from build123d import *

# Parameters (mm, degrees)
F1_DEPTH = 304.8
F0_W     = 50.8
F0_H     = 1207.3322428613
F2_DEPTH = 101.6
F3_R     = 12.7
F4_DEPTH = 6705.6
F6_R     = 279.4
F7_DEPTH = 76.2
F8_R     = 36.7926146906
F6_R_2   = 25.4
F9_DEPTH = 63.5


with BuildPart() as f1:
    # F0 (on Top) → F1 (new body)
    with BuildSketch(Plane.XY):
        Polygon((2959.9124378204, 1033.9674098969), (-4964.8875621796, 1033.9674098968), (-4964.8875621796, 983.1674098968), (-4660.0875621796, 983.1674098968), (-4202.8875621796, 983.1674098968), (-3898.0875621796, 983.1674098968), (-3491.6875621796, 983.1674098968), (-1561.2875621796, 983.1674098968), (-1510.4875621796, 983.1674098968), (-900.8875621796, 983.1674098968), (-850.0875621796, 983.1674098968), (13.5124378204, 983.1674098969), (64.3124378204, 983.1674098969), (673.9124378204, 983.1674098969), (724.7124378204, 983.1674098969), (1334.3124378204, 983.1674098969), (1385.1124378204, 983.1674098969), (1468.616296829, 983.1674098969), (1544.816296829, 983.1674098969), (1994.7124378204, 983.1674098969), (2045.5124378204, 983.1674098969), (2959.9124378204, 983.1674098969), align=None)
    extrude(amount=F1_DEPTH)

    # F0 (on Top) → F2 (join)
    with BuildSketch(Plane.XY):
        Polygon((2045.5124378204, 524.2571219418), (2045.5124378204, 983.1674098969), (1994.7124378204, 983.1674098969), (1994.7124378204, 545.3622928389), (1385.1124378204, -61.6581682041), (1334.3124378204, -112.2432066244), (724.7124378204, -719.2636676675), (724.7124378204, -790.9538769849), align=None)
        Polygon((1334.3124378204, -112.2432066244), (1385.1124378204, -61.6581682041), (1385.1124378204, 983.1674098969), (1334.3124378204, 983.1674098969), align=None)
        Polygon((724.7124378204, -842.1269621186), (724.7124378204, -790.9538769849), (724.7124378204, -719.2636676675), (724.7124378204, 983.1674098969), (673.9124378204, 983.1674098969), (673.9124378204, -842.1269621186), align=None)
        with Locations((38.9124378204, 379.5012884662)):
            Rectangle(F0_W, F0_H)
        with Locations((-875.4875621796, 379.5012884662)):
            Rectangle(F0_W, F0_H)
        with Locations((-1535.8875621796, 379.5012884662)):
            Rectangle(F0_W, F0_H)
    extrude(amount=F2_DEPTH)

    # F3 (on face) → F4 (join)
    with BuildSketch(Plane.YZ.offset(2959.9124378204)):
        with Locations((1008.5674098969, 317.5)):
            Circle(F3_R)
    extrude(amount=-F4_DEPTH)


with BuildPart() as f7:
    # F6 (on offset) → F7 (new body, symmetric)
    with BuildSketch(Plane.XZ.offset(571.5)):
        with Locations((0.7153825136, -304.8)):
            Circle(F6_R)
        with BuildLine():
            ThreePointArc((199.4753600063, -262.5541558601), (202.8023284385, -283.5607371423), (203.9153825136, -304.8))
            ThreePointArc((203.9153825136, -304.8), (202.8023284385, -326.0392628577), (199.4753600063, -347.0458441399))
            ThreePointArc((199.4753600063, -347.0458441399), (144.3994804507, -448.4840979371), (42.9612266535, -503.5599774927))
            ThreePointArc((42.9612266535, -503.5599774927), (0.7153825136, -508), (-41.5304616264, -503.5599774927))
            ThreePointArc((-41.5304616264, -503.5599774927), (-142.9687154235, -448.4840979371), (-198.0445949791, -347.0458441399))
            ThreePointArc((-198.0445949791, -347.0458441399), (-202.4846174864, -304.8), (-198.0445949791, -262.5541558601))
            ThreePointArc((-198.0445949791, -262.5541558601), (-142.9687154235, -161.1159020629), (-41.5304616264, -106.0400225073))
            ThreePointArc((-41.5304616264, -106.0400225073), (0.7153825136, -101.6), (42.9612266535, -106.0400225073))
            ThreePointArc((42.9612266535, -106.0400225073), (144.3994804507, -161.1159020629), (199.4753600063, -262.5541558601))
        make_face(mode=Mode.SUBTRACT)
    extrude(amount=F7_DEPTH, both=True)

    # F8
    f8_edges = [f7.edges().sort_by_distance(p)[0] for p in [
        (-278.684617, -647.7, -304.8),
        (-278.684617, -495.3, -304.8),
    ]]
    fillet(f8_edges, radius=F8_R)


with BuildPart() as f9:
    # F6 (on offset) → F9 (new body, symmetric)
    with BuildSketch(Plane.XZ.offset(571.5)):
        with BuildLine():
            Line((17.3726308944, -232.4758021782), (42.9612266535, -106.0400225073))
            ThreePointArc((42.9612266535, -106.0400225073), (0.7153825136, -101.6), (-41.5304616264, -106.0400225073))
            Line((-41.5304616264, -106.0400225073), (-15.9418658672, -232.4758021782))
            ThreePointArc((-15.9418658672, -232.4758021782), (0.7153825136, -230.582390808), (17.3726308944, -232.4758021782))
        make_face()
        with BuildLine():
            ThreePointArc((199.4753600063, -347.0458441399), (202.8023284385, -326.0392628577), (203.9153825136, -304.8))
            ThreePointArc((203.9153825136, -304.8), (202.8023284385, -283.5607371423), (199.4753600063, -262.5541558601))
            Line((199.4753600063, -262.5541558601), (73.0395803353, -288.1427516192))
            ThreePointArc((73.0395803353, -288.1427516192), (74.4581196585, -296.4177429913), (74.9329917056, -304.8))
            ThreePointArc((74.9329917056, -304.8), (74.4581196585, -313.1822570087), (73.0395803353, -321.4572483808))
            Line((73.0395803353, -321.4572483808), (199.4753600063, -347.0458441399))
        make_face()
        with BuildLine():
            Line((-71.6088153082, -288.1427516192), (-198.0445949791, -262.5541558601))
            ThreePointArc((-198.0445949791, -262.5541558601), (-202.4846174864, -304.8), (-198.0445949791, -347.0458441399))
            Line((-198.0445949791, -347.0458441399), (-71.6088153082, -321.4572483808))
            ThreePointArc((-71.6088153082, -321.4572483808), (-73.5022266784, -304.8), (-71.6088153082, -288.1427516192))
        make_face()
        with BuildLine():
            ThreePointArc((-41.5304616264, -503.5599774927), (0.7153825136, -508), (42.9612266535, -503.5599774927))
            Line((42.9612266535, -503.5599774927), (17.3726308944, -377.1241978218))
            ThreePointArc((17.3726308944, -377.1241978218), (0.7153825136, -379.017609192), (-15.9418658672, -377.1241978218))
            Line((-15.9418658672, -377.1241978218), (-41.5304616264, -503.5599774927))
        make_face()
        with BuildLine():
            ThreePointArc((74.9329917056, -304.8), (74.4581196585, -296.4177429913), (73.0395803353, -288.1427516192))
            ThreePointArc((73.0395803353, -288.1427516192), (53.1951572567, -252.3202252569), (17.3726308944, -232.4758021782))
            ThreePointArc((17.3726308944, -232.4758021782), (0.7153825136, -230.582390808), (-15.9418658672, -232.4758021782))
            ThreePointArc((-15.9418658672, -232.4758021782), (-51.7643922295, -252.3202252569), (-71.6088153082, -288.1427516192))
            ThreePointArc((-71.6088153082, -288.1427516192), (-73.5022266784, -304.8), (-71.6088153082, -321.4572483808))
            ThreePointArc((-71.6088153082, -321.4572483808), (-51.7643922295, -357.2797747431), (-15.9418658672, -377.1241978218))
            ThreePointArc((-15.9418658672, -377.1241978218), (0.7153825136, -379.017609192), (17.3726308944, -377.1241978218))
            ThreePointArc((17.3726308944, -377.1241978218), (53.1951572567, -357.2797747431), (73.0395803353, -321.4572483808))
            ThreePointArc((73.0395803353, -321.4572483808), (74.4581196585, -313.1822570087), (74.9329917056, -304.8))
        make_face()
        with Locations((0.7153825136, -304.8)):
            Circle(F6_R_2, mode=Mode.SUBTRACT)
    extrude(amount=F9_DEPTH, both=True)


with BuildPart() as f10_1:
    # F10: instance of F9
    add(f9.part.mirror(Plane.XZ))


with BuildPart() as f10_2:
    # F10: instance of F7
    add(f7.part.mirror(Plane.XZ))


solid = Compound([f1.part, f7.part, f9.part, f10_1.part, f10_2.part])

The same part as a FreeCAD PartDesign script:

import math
import FreeCAD as App
import Part
import Sketcher

V = App.Vector
Q = App.Units.Quantity


def edges_at(feature, points):
    """Names of the edges that pass closest to the given points."""
    edges = feature.Shape.Edges
    near = lambda p: min(range(len(edges)), key=lambda i: edges[i].distToShape(Part.Vertex(*p))[0])
    return sorted({f"Edge{near(p) + 1}" for p in points})

doc = App.newDocument("Part")
body = doc.addObject("PartDesign::Body", "Body")
body.AllowCompound = True

sketch1 = body.newObject("Sketcher::SketchObject", "Sketch")
sketch1.AttachmentSupport = (doc.getObject("XY_Plane"), [""])
sketch1.MapMode = "FlatFace"
sketch1.addGeometry([
    Part.LineSegment(V(2959.912438, 1033.96741, 0), V(-4964.887562, 1033.96741, 0)),
    Part.LineSegment(V(-4964.887562, 1033.96741, 0), V(-4964.887562, 983.16741, 0)),
    Part.LineSegment(V(-4964.887562, 983.16741, 0), V(2959.912438, 983.16741, 0)),
    Part.LineSegment(V(2959.912438, 983.16741, 0), V(2959.912438, 1033.96741, 0)),
], False)
sketch1.addConstraint([
    Sketcher.Constraint("Coincident", 0, 2, 1, 1),
    Sketcher.Constraint("Coincident", 1, 2, 2, 1),
    Sketcher.Constraint("Coincident", 2, 2, 3, 1),
    Sketcher.Constraint("Coincident", 3, 2, 0, 1),
    Sketcher.Constraint("Horizontal", 0),
    Sketcher.Constraint("Vertical", 1),
    Sketcher.Constraint("Horizontal", 2),
    Sketcher.Constraint("Vertical", 3),
    Sketcher.Constraint("DistanceX", 0, 2, 0, 1, Q("312 in")),
    Sketcher.Constraint("DistanceY", 1, 2, 1, 1, Q("2 in")),
    Sketcher.Constraint("DistanceY", -1, 1, 0, 2, 1033.96741),
    Sketcher.Constraint("DistanceX", 0, 2, -1, 1, 4964.887562),
])
pad1 = body.newObject("PartDesign::Pad", "Pad")
pad1.Profile = sketch1
pad1.Length = Q("12 in")

sketch2 = body.newObject("Sketcher::SketchObject", "Sketch001")
sketch2.AttachmentSupport = (doc.getObject("XY_Plane"), [""])
sketch2.MapMode = "FlatFace"
sketch2.addGeometry([
    Part.LineSegment(V(2045.512438, 524.257122, 0), V(2045.512438, 983.16741, 0)),
    Part.LineSegment(V(2045.512438, 983.16741, 0), V(1994.712438, 983.16741, 0)),
    Part.LineSegment(V(1994.712438, 983.16741, 0), V(1994.712438, 545.362293, 0)),
    Part.LineSegment(V(1994.712438, 545.362293, 0), V(1385.112438, -61.658168, 0)),
    Part.LineSegment(V(1385.112438, -61.658168, 0), V(1385.112438, 983.16741, 0)),
    Part.LineSegment(V(1385.112438, 983.16741, 0), V(1334.312438, 983.16741, 0)),
    Part.LineSegment(V(1334.312438, 983.16741, 0), V(1334.312438, -112.243207, 0)),
    Part.LineSegment(V(1334.312438, -112.243207, 0), V(724.712438, -719.263668, 0)),
    Part.LineSegment(V(724.712438, -719.263668, 0), V(724.712438, 983.16741, 0)),
    Part.LineSegment(V(724.712438, 983.16741, 0), V(673.912438, 983.16741, 0)),
    Part.LineSegment(V(673.912438, 983.16741, 0), V(673.912438, -842.126962, 0)),
    Part.LineSegment(V(673.912438, -842.126962, 0), V(724.712438, -842.126962, 0)),
    Part.LineSegment(V(724.712438, -842.126962, 0), V(724.712438, -790.953877, 0)),
    Part.LineSegment(V(724.712438, -790.953877, 0), V(2045.512438, 524.257122, 0)),
    Part.LineSegment(V(13.512438, 983.16741, 0), V(13.512438, -224.164833, 0)),
    Part.LineSegment(V(13.512438, -224.164833, 0), V(64.312438, -224.164833, 0)),
    Part.LineSegment(V(64.312438, -224.164833, 0), V(64.312438, 983.16741, 0)),
    Part.LineSegment(V(64.312438, 983.16741, 0), V(13.512438, 983.16741, 0)),
    Part.LineSegment(V(-900.887562, 983.16741, 0), V(-900.887562, -224.164833, 0)),
    Part.LineSegment(V(-900.887562, -224.164833, 0), V(-850.087562, -224.164833, 0)),
    Part.LineSegment(V(-850.087562, -224.164833, 0), V(-850.087562, 983.16741, 0)),
    Part.LineSegment(V(-850.087562, 983.16741, 0), V(-900.887562, 983.16741, 0)),
    Part.LineSegment(V(-1561.287562, 983.16741, 0), V(-1561.287562, -224.164833, 0)),
    Part.LineSegment(V(-1561.287562, -224.164833, 0), V(-1510.487562, -224.164833, 0)),
    Part.LineSegment(V(-1510.487562, -224.164833, 0), V(-1510.487562, 983.16741, 0)),
    Part.LineSegment(V(-1510.487562, 983.16741, 0), V(-1561.287562, 983.16741, 0)),
], False)
sketch2.addConstraint([
    Sketcher.Constraint("Coincident", 0, 2, 1, 1),
    Sketcher.Constraint("Coincident", 1, 2, 2, 1),
    Sketcher.Constraint("Coincident", 2, 2, 3, 1),
    Sketcher.Constraint("Coincident", 3, 2, 4, 1),
    Sketcher.Constraint("Coincident", 4, 2, 5, 1),
    Sketcher.Constraint("Coincident", 5, 2, 6, 1),
    Sketcher.Constraint("Coincident", 6, 2, 7, 1),
    Sketcher.Constraint("Coincident", 7, 2, 8, 1),
    Sketcher.Constraint("Coincident", 8, 2, 9, 1),
    Sketcher.Constraint("Coincident", 9, 2, 10, 1),
    Sketcher.Constraint("Coincident", 10, 2, 11, 1),
    Sketcher.Constraint("Coincident", 11, 2, 12, 1),
    Sketcher.Constraint("Coincident", 12, 2, 13, 1),
    Sketcher.Constraint("Coincident", 13, 2, 0, 1),
    Sketcher.Constraint("Coincident", 14, 2, 15, 1),
    Sketcher.Constraint("Coincident", 15, 2, 16, 1),
    Sketcher.Constraint("Coincident", 16, 2, 17, 1),
    Sketcher.Constraint("Coincident", 17, 2, 14, 1),
    Sketcher.Constraint("Coincident", 18, 2, 19, 1),
    Sketcher.Constraint("Coincident", 19, 2, 20, 1),
    Sketcher.Constraint("Coincident", 20, 2, 21, 1),
    Sketcher.Constraint("Coincident", 21, 2, 18, 1),
    Sketcher.Constraint("Coincident", 22, 2, 23, 1),
    Sketcher.Constraint("Coincident", 23, 2, 24, 1),
    Sketcher.Constraint("Coincident", 24, 2, 25, 1),
    Sketcher.Constraint("Coincident", 25, 2, 22, 1),
    Sketcher.Constraint("Vertical", 0),
    Sketcher.Constraint("Horizontal", 1),
    Sketcher.Constraint("Vertical", 2),
    Sketcher.Constraint("Vertical", 4),
    Sketcher.Constraint("Horizontal", 5),
    Sketcher.Constraint("Vertical", 6),
    Sketcher.Constraint("Vertical", 8),
    Sketcher.Constraint("Horizontal", 9),
    Sketcher.Constraint("Vertical", 10),
    Sketcher.Constraint("Horizontal", 11),
    Sketcher.Constraint("Vertical", 12),
    Sketcher.Constraint("Vertical", 14),
    Sketcher.Constraint("Horizontal", 15),
    Sketcher.Constraint("Vertical", 16),
    Sketcher.Constraint("Horizontal", 17),
    Sketcher.Constraint("Vertical", 18),
    Sketcher.Constraint("Horizontal", 19),
    Sketcher.Constraint("Vertical", 20),
    Sketcher.Constraint("Horizontal", 21),
    Sketcher.Constraint("Vertical", 22),
    Sketcher.Constraint("Horizontal", 23),
    Sketcher.Constraint("Vertical", 24),
    Sketcher.Constraint("Horizontal", 25),
    Sketcher.Constraint("Parallel", 3, 7),
    Sketcher.Constraint("Parallel", 7, 13),
    Sketcher.Constraint("Horizontal", 1, 2, 4, 2),
    Sketcher.Constraint("Horizontal", 5, 2, 8, 2),
    Sketcher.Constraint("Horizontal", 9, 2, 16, 2),
    Sketcher.Constraint("Horizontal", 15, 2, 18, 2),
    Sketcher.Constraint("Horizontal", 17, 2, 20, 2),
    Sketcher.Constraint("Horizontal", 19, 2, 22, 2),
    Sketcher.Constraint("Horizontal", 21, 2, 24, 2),
    Sketcher.Constraint("Vertical", 8, 2, 11, 2),
    Sketcher.Constraint("Equal", 1, 5),
    Sketcher.Constraint("Equal", 5, 9),
    Sketcher.Constraint("Equal", 11, 15),
    Sketcher.Constraint("Equal", 17, 19),
    Sketcher.Constraint("Equal", 21, 23),
    Sketcher.Constraint("Equal", 3, 7),
    Sketcher.Constraint("DistanceX", 1, 2, 1, 1, Q("2 in")),
    Sketcher.Constraint("DistanceX", 3, 2, 2, 2, Q("24 in")),
    Sketcher.Constraint("DistanceX", 14, 2, 7, 2, Q("28 in")),
    Sketcher.Constraint("DistanceX", 18, 2, 14, 2, Q("36 in")),
    Sketcher.Constraint("DistanceX", 22, 2, 18, 2, Q("26 in")),
    Sketcher.Constraint("DistanceY", 4, 1, 4, 2, 1044.825578),
    Sketcher.Constraint("DistanceY", 6, 2, 2, 2, 657.605499),
    Sketcher.Constraint("Distance", 3, 860.282512),
    Sketcher.Constraint("DistanceY", 0, 1, 0, 2, 458.910288),
    Sketcher.Constraint("DistanceY", 10, 2, 10, 1, 1825.294372),
    Sketcher.Constraint("DistanceY", 14, 2, 14, 1, 1207.332243),
    Sketcher.Constraint("DistanceY", -1, 1, 0, 2, 983.16741),
    Sketcher.Constraint("DistanceX", -1, 1, 0, 2, 2045.512438),
])
pad2 = body.newObject("PartDesign::Pad", "Pad001")
pad2.Profile = sketch2
pad2.Length = Q("4 in")

sketch3 = body.newObject("Sketcher::SketchObject", "Sketch002")
sketch3.AttachmentSupport = (doc.getObject("YZ_Plane"), [""])
sketch3.MapMode = "FlatFace"
sketch3.AttachmentOffset = App.Placement(V(0, 0, 2959.912438), App.Rotation())
sketch3.addGeometry(Part.Circle(V(1008.56741, 317.5, 0), V(0, 0, 1), 12.7), False)
sketch3.addConstraint([
    Sketcher.Constraint("Diameter", 0, Q("1 in")),
    Sketcher.Constraint("DistanceY", -1, 1, 0, 3, Q("12.5 in")),
    Sketcher.Constraint("DistanceX", -1, 1, 0, 3, 1008.56741),
])
pad3 = body.newObject("PartDesign::Pad", "Pad002")
pad3.Profile = sketch3
pad3.Length = Q("264 in")
pad3.Reversed = True
body2 = doc.addObject("PartDesign::Body", "Body001")

sketch4 = body2.newObject("Sketcher::SketchObject", "Sketch003")
sketch4.AttachmentSupport = (doc.getObject("XZ_Plane001"), [""])
sketch4.MapMode = "FlatFace"
sketch4.AttachmentOffset = App.Placement(V(0, 0, 22.5 * 25.4), App.Rotation())
sketch4.addGeometry([
    Part.Circle(V(0.715383, -304.8, 0), V(0, 0, 1), 279.4),
    Part.ArcOfCircle(Part.Circle(V(0.715383, -304.8, 0), V(0, 0, 1), 203.2), math.radians(0), math.radians(168.000522)),
    Part.ArcOfCircle(Part.Circle(V(0.715383, -304.8, 0), V(0, 0, 1), 203.2), math.radians(-78.000522), math.radians(0)),
    Part.ArcOfCircle(Part.Circle(V(0.715383, -304.8, 0), V(0, 0, 1), 203.2), math.radians(-168.000522), math.radians(-78.000522)),
    Part.ArcOfCircle(Part.Circle(V(0.715383, -304.8, 0), V(0, 0, 1), 203.2), math.radians(168.000522), math.radians(191.999478)),
], False)
sketch4.addConstraint([
    Sketcher.Constraint("Tangent", 1, 1, 2, 2),
    Sketcher.Constraint("Tangent", 2, 1, 3, 2),
    Sketcher.Constraint("Tangent", 3, 1, 4, 2),
    Sketcher.Constraint("Tangent", 4, 1, 1, 2),
    Sketcher.Constraint("Coincident", 1, 3, 0, 3),
    Sketcher.Constraint("Equal", 1, 2),
    Sketcher.Constraint("Horizontal", 4, 3, 1, 1),
    Sketcher.Constraint("Vertical", 3, 1, 4, 1),
    Sketcher.Constraint("Diameter", 0, Q("22 in")),
    Sketcher.Constraint("Radius", 1, Q("8 in")),
    Sketcher.Constraint("DistanceY", 0, 3, -1, 1, Q("12 in")),
    Sketcher.Constraint("DistanceY", 3, 1, 4, 1, 84.491688),
    Sketcher.Constraint("DistanceX", -1, 1, 0, 3, 0.715383),
    Sketcher.Constraint("DistanceX", -1, 1, 2, 1, 42.961227),
])
pad4 = body2.newObject("PartDesign::Pad", "Pad003")
pad4.Profile = sketch4
pad4.Length = Q("6 in")
pad4.Midplane = True
doc.recompute()

fillet = body2.newObject("PartDesign::Fillet", "Fillet")
fillet.Base = (pad4, edges_at(pad4, [(-278.685, -647.7, -304.8), (-278.685, -495.3, -304.8)]))
fillet.Radius = 36.792615
body3 = doc.addObject("PartDesign::Body", "Body002")

sketch5 = body3.newObject("Sketcher::SketchObject", "Sketch004")
sketch5.AttachmentSupport = (doc.getObject("XZ_Plane002"), [""])
sketch5.MapMode = "FlatFace"
sketch5.AttachmentOffset = App.Placement(V(0, 0, 22.5 * 25.4), App.Rotation())
sketch5.addGeometry([
    Part.LineSegment(V(17.372631, -232.475802, 0), V(42.961227, -106.040023, 0)),
    Part.ArcOfCircle(Part.Circle(V(0.715383, -304.8, 0), V(0, 0, 1), 203.2), math.radians(78.000522), math.radians(101.999478)),
    Part.LineSegment(V(-41.530462, -106.040023, 0), V(-15.941866, -232.475802, 0)),
    Part.ArcOfCircle(Part.Circle(V(0.715383, -304.8, 0), V(0, 0, 1), 74.217609), math.radians(102.96983), math.radians(167.03017)),
    Part.LineSegment(V(-71.608815, -288.142752, 0), V(-198.044595, -262.554156, 0)),
    Part.ArcOfCircle(Part.Circle(V(0.715383, -304.8, 0), V(0, 0, 1), 203.2), math.radians(168.000522), math.radians(191.999478)),
    Part.LineSegment(V(-198.044595, -347.045844, 0), V(-71.608815, -321.457248, 0)),
    Part.ArcOfCircle(Part.Circle(V(0.715383, -304.8, 0), V(0, 0, 1), 74.217609), math.radians(-167.03017), math.radians(-102.96983)),
    Part.LineSegment(V(-15.941866, -377.124198, 0), V(-41.530462, -503.559977, 0)),
    Part.ArcOfCircle(Part.Circle(V(0.715383, -304.8, 0), V(0, 0, 1), 203.2), math.radians(-101.999478), math.radians(-78.000522)),
    Part.LineSegment(V(42.961227, -503.559977, 0), V(17.372631, -377.124198, 0)),
    Part.ArcOfCircle(Part.Circle(V(0.715383, -304.8, 0), V(0, 0, 1), 74.217609), math.radians(-77.03017), math.radians(-12.96983)),
    Part.LineSegment(V(73.03958, -321.457248, 0), V(199.47536, -347.045844, 0)),
    Part.ArcOfCircle(Part.Circle(V(0.715383, -304.8, 0), V(0, 0, 1), 203.2), math.radians(-11.999478), math.radians(0)),
    Part.ArcOfCircle(Part.Circle(V(0.715383, -304.8, 0), V(0, 0, 1), 203.2), math.radians(0), math.radians(11.999478)),
    Part.LineSegment(V(199.47536, -262.554156, 0), V(73.03958, -288.142752, 0)),
    Part.ArcOfCircle(Part.Circle(V(0.715383, -304.8, 0), V(0, 0, 1), 74.217609), math.radians(12.96983), math.radians(77.03017)),
    Part.Circle(V(0.715383, -304.8, 0), V(0, 0, 1), 25.4),
], False)
sketch5.addConstraint([
    Sketcher.Constraint("Coincident", 0, 2, 1, 1),
    Sketcher.Constraint("Coincident", 1, 2, 2, 1),
    Sketcher.Constraint("Coincident", 2, 2, 3, 1),
    Sketcher.Constraint("Coincident", 3, 2, 4, 1),
    Sketcher.Constraint("Coincident", 4, 2, 5, 1),
    Sketcher.Constraint("Coincident", 5, 2, 6, 1),
    Sketcher.Constraint("Coincident", 6, 2, 7, 1),
    Sketcher.Constraint("Coincident", 7, 2, 8, 1),
    Sketcher.Constraint("Coincident", 8, 2, 9, 1),
    Sketcher.Constraint("Coincident", 9, 2, 10, 1),
    Sketcher.Constraint("Coincident", 10, 2, 11, 1),
    Sketcher.Constraint("Coincident", 11, 2, 12, 1),
    Sketcher.Constraint("Coincident", 12, 2, 13, 1),
    Sketcher.Constraint("Tangent", 13, 2, 14, 1),
    Sketcher.Constraint("Coincident", 14, 2, 15, 1),
    Sketcher.Constraint("Coincident", 15, 2, 16, 1),
    Sketcher.Constraint("Coincident", 16, 2, 0, 1),
    Sketcher.Constraint("Coincident", 3, 3, 1, 3),
    Sketcher.Constraint("Coincident", 5, 3, 1, 3),
    Sketcher.Constraint("Coincident", 7, 3, 1, 3),
    Sketcher.Constraint("Coincident", 9, 3, 1, 3),
    Sketcher.Constraint("Coincident", 11, 3, 1, 3),
    Sketcher.Constraint("Coincident", 13, 3, 1, 3),
    Sketcher.Constraint("Coincident", 16, 3, 1, 3),
    Sketcher.Constraint("Coincident", 17, 3, 1, 3),
    Sketcher.Constraint("Equal", 1, 5),
    Sketcher.Constraint("Equal", 3, 7),
    Sketcher.Constraint("Equal", 5, 9),
    Sketcher.Constraint("Equal", 7, 11),
    Sketcher.Constraint("Equal", 9, 13),
    Sketcher.Constraint("Equal", 13, 14),
    Sketcher.Constraint("Equal", 11, 16),
    Sketcher.Constraint("Perpendicular", 0, 4),
    Sketcher.Constraint("Perpendicular", 2, 6),
    Sketcher.Constraint("Perpendicular", 4, 8),
    Sketcher.Constraint("Perpendicular", 6, 10),
    Sketcher.Constraint("Perpendicular", 8, 12),
    Sketcher.Constraint("Perpendicular", 10, 15),
    Sketcher.Constraint("Horizontal", 0, 2, 1, 2),
    Sketcher.Constraint("Horizontal", 8, 2, 9, 2),
    Sketcher.Constraint("Horizontal", 7, 2, 10, 2),
    Sketcher.Constraint("Horizontal", 6, 2, 11, 2),
    Sketcher.Constraint("Horizontal", 17, 3, 13, 2),
    Sketcher.Constraint("Horizontal", 4, 2, 14, 2),
    Sketcher.Constraint("Vertical", 4, 2, 5, 2),
    Sketcher.Constraint("Vertical", 2, 2, 7, 2),
    Sketcher.Constraint("Equal", 2, 4),
    Sketcher.Constraint("Diameter", 17, Q("2 in")),
    Sketcher.Constraint("Radius", 1, Q("8 in")),
    Sketcher.Constraint("DistanceY", 1, 3, -1, 1, Q("12 in")),
    Sketcher.Constraint("Radius", 3, 74.217609),
    Sketcher.Constraint("DistanceX", 1, 2, -1, 1, 41.530462),
    Sketcher.Constraint("DistanceY", 3, 2, -1, 1, 288.142752),
    Sketcher.Constraint("DistanceX", -1, 1, 10, 2, 17.372631),
])
pad5 = body3.newObject("PartDesign::Pad", "Pad004")
pad5.Profile = sketch5
pad5.Length = Q("5 in")
pad5.Midplane = True
body4 = doc.addObject("PartDesign::Body", "Body003")
doc.recompute()

mirroring = doc.addObject("Part::Mirroring", "Mirroring")
mirroring.Source = body3
mirroring.Base = V(0, 0, 0)
mirroring.Normal = V(0, -1, 0)
body4.BaseFeature = mirroring
doc.recompute()
body5 = doc.addObject("PartDesign::Body", "Body004")
doc.recompute()

mirroring2 = doc.addObject("Part::Mirroring", "Mirroring001")
mirroring2.Source = body2
mirroring2.Base = V(0, 0, 0)
mirroring2.Normal = V(0, -1, 0)
body5.BaseFeature = mirroring2
doc.recompute()
mirroring.Visibility = False
mirroring2.Visibility = False

doc.recompute()
